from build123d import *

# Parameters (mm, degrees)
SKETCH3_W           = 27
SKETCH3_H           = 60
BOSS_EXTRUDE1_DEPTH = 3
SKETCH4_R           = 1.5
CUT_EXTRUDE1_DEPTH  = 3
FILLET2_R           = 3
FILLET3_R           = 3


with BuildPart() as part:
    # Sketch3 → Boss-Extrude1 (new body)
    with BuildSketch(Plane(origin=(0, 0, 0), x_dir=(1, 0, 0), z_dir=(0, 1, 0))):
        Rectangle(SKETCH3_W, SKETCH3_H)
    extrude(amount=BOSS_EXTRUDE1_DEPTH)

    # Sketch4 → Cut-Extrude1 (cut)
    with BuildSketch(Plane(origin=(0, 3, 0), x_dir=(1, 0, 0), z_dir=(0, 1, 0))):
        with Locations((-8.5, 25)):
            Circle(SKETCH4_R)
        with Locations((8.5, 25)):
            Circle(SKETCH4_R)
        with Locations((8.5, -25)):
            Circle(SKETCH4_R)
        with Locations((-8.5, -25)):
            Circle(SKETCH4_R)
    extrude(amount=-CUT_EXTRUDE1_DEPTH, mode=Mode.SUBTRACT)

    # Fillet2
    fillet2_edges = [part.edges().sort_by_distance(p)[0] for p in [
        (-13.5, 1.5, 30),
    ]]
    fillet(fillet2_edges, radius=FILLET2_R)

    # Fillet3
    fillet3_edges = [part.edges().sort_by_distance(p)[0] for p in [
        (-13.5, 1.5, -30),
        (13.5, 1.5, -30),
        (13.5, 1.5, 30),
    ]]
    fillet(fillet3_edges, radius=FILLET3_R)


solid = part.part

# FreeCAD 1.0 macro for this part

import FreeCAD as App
import Part
import Sketcher
from FreeCAD import Vector
Q = App.Units.Quantity


def edges_at(feature, points):
    """Names of the edges that pass closest to the given points."""
    edges = feature.Shape.Edges
    near = lambda p: min(range(len(edges)), key=lambda i: edges[i].distToShape(Part.Vertex(*p))[0])
    return sorted({f"Edge{near(p) + 1}" for p in points})


def add_polygon(sketch, points):
    """Adds a closed chain of lines whose ends are joined by coincident constraints."""
    first, n = sketch.GeometryCount, len(points)
    for a, b in zip(points, points[1:] + points[:1]):
        sketch.addGeometry(Part.LineSegment(App.Vector(*a, 0), App.Vector(*b, 0)), False)
    for i in range(n):
        sketch.addConstraint(Sketcher.Constraint("Coincident", first + i, 2, first + (i + 1) % n, 1))

doc = App.newDocument("Part")
body = doc.addObject("PartDesign::Body", "Body")

# Sketch on XZ plane
sketch1 = doc.addObject("Sketcher::SketchObject", "Sketch")
body.addObject(sketch1)
sketch1.AttachmentSupport = (doc.XZ_Plane, [""])
sketch1.MapMode = "FlatFace"
add_polygon(sketch1, [(-14, -30), (-14, 30), (14, 30), (14, -30)])  # lines 0-3
sketch1.addConstraint(Sketcher.Constraint("Vertical", 0))
sketch1.addConstraint(Sketcher.Constraint("Horizontal", 1))
sketch1.addConstraint(Sketcher.Constraint("Vertical", 2))
sketch1.addConstraint(Sketcher.Constraint("Horizontal", 3))
sketch1.addConstraint(Sketcher.Constraint("Symmetric", 0, 2, 2, 2, -1, 1))
sketch1.addConstraint(Sketcher.Constraint("DistanceX", 1, 1, 1, 2, Q("27 mm")))
sketch1.addConstraint(Sketcher.Constraint("DistanceY", 0, 1, 0, 2, Q("60 mm")))
pad1 = doc.addObject("PartDesign::Pad", "Pad")
body.addObject(pad1)
pad1.Profile = sketch1
pad1.Length = 3
pad1.Reversed = True

# Sketch on XZ plane
sketch2 = doc.addObject("Sketcher::SketchObject", "Sketch001")
body.addObject(sketch2)
sketch2.AttachmentSupport = (doc.XZ_Plane, [""])
sketch2.MapMode = "FlatFace"
sketch2.AttachmentOffset = App.Placement(Vector(0, 0, -3), App.Rotation())
sketch2.addGeometry(Part.Circle(Vector(-8.5, -25, 0), Vector(0, 0, 1), 1.5), False)
sketch2.addGeometry(Part.Circle(Vector(8.5, -25, 0), Vector(0, 0, 1), 1.5), False)
sketch2.addGeometry(Part.Circle(Vector(8.5, 25, 0), Vector(0, 0, 1), 1.5), False)
sketch2.addGeometry(Part.Circle(Vector(-8.5, 25, 0), Vector(0, 0, 1), 1.5), False)
sketch2.addConstraint(Sketcher.Constraint("Equal", 0, 1))
sketch2.addConstraint(Sketcher.Constraint("Equal", 1, 2))
sketch2.addConstraint(Sketcher.Constraint("Equal", 2, 3))
sketch2.addConstraint(Sketcher.Constraint("Symmetric", 0, 3, 2, 3, -1, 1))
sketch2.addConstraint(Sketcher.Constraint("Symmetric", 1, 3, 3, 3, -1, 1))
sketch2.addConstraint(Sketcher.Constraint("Symmetric", 0, 3, 1, 3, -2))
sketch2.addConstraint(Sketcher.Constraint("Diameter", 0, Q("3 mm")))
sketch2.addConstraint(Sketcher.Constraint("DistanceY", 0, 3, -1, 1, Q("25 mm")))
sketch2.addConstraint(Sketcher.Constraint("DistanceX", 0, 3, 1, 3, Q("17 mm")))
pocket1 = doc.addObject("PartDesign::Pocket", "Pocket")
body.addObject(pocket1)
pocket1.Profile = sketch2
pocket1.Length = 3
pocket1.Reversed = True
doc.recompute()

fillet = doc.addObject("PartDesign::Fillet", "Fillet")
body.addObject(fillet)
fillet.Base = (pocket1, edges_at(pocket1, [(-13.5, 1.5, 30)]))
fillet.Radius = 3
doc.recompute()

fillet2 = doc.addObject("PartDesign::Fillet", "Fillet001")
body.addObject(fillet2)
fillet2.Base = (fillet, edges_at(fillet, [(-13.5, 1.5, -30), (13.5, 1.5, -30), (13.5, 1.5, 30)]))
fillet2.Radius = 3

doc.recompute()
